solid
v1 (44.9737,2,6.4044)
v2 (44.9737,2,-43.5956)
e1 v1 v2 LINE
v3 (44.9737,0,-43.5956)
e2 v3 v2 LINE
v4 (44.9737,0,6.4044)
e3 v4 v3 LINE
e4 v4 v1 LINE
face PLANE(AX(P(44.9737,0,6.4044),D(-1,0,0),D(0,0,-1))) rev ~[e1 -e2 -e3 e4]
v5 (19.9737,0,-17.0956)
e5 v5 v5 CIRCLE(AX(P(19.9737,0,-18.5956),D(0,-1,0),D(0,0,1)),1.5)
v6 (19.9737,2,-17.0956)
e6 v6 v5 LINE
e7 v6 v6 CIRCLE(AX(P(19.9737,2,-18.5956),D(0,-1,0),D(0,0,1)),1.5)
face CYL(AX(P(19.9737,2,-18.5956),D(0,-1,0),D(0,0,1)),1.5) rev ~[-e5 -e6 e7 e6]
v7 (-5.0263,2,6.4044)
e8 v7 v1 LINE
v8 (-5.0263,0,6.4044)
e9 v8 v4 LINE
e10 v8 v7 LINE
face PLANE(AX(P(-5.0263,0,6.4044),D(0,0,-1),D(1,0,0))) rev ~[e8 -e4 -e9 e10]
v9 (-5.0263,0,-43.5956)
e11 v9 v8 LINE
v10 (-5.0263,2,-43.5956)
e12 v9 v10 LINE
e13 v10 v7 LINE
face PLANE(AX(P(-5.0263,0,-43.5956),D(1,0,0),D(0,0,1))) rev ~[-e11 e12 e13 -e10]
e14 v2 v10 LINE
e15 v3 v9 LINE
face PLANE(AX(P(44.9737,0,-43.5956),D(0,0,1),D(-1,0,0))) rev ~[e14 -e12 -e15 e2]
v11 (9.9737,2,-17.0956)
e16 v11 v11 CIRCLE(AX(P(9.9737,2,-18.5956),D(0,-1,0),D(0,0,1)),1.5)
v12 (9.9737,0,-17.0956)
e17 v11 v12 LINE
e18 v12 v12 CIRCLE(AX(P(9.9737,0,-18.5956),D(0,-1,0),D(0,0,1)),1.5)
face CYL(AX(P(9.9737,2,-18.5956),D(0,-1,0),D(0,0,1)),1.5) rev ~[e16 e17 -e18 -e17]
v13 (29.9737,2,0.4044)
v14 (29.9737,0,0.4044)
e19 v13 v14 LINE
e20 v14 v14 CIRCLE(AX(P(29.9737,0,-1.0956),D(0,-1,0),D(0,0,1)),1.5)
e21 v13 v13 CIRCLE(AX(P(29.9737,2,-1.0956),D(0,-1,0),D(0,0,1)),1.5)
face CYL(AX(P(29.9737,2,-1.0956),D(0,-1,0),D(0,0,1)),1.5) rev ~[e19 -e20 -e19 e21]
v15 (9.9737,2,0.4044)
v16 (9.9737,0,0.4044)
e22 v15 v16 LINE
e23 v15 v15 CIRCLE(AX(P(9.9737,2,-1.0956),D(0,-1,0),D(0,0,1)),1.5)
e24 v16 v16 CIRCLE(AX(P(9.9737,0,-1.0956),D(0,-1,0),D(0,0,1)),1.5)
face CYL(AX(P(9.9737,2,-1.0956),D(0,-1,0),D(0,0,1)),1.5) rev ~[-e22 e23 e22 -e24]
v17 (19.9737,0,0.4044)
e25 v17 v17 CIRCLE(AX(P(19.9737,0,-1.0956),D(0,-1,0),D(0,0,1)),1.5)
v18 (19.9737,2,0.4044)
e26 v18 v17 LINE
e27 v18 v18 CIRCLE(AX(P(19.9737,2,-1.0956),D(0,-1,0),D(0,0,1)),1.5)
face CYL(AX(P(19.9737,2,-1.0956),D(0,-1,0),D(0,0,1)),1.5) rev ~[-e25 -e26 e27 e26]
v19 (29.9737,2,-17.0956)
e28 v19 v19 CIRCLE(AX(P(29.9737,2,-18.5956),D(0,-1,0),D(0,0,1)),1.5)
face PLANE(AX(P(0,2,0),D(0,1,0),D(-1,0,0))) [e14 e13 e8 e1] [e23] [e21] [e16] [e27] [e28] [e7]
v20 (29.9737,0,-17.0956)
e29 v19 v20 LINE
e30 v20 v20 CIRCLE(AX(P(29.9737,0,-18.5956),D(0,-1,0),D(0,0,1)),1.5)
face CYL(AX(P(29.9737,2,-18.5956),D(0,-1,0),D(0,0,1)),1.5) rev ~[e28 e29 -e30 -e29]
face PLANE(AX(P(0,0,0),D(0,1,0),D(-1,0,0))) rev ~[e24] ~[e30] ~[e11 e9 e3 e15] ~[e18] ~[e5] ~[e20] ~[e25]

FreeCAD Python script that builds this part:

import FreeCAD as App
import Part
import Sketcher
from FreeCAD import Vector
Q = App.Units.Quantity

doc = App.newDocument("Part")
body = doc.addObject("PartDesign::Body", "Body")

# Sketch on XZ plane
sketch1 = doc.addObject("Sketcher::SketchObject", "Sketch")
body.addObject(sketch1)
sketch1.AttachmentSupport = (doc.XZ_Plane, [""])
sketch1.MapMode = "FlatFace"
sketch1.addGeometry([
    Part.LineSegment(Vector(-5.0263, -43.5956, 0), Vector(-5.0263, 6.4044, 0)),
    Part.LineSegment(Vector(-5.0263, 6.4044, 0), Vector(44.9737, 6.4044, 0)),
    Part.LineSegment(Vector(44.9737, 6.4044, 0), Vector(44.9737, -43.5956, 0)),
    Part.LineSegment(Vector(44.9737, -43.5956, 0), Vector(-5.0263, -43.5956, 0)),
], False)
sketch1.addConstraint([
    Sketcher.Constraint("Coincident", 0, 2, 1, 1),
    Sketcher.Constraint("Coincident", 1, 2, 2, 1),
    Sketcher.Constraint("Coincident", 2, 2, 3, 1),
    Sketcher.Constraint("Coincident", 3, 2, 0, 1),
    Sketcher.Constraint("Vertical", 0),
    Sketcher.Constraint("Horizontal", 1),
    Sketcher.Constraint("Vertical", 2),
    Sketcher.Constraint("Horizontal", 3),
    Sketcher.Constraint("Equal", 3, 0),
    Sketcher.Constraint("DistanceX", 1, 1, 1, 2, Q("50 mm")),
    Sketcher.Constraint("DistanceX", 0, 2, -1, 1, Q("5.0263 mm")),
    Sketcher.Constraint("DistanceY", -1, 1, 0, 2, Q("6.4044 mm")),
])
pad1 = doc.addObject("PartDesign::Pad", "Pad")
body.addObject(pad1)
pad1.Profile = sketch1
pad1.Length = 2
pad1.Reversed = True

# Sketch on XZ plane
sketch2 = doc.addObject("Sketcher::SketchObject", "Sketch001")
body.addObject(sketch2)
sketch2.AttachmentSupport = (doc.XZ_Plane, [""])
sketch2.MapMode = "FlatFace"
sketch2.AttachmentOffset = App.Placement(Vector(0, 0, -2), App.Rotation())
sketch2.addGeometry([
    Part.Circle(Vector(9.9737, -1.0956, 0), Vector(0, 0, 1), 1.5),  # 0
    Part.Circle(Vector(19.9737, -1.0956, 0), Vector(0, 0, 1), 1.5),  # 1
    Part.Circle(Vector(29.9737, -1.0956, 0), Vector(0, 0, 1), 1.5),  # 2
    Part.Circle(Vector(9.9737, -18.5956, 0), Vector(0, 0, 1), 1.5),  # 3
    Part.Circle(Vector(19.9737, -18.5956, 0), Vector(0, 0, 1), 1.5),  # 4
    Part.Circle(Vector(29.9737, -18.5956, 0), Vector(0, 0, 1), 1.5),  # 5
], False)
sketch2.addConstraint([
    Sketcher.Constraint("Equal", 0, 1),
    Sketcher.Constraint("Equal", 1, 2),
    Sketcher.Constraint("Equal", 2, 3),
    Sketcher.Constraint("Equal", 3, 4),
    Sketcher.Constraint("Equal", 4, 5),
    Sketcher.Constraint("Horizontal", 0, 3, 1, 3),
    Sketcher.Constraint("Horizontal", 1, 3, 2, 3),
    Sketcher.Constraint("Horizontal", 3, 3, 4, 3),
    Sketcher.Constraint("Horizontal", 4, 3, 5, 3),
    Sketcher.Constraint("Vertical", 0, 3, 3, 3),
    Sketcher.Constraint("Vertical", 1, 3, 4, 3),
    Sketcher.Constraint("Vertical", 2, 3, 5, 3),
    Sketcher.Constraint("Diameter", 0, Q("3 mm")),
    Sketcher.Constraint("DistanceX", 0, 3, 1, 3, Q("10 mm")),
    Sketcher.Constraint("DistanceX", 1, 3, 2, 3, Q("10 mm")),
    Sketcher.Constraint("DistanceY", 3, 3, 0, 3, Q("17.5 mm")),
    Sketcher.Constraint("DistanceX", -1, 1, 0, 3, Q("9.9737 mm")),
    Sketcher.Constraint("DistanceY", 0, 3, -1, 1, Q("1.0956 mm")),
])
doc.recompute()
hole = doc.addObject("PartDesign::Hole", "Hole")
body.addObject(hole)
hole.Profile = sketch2
hole.ThreadType = "None"
hole.Diameter = 3
hole.DepthType = "Dimension"
hole.Depth = 2
hole.DrillPoint = "Flat"
hole.Reversed = True

doc.recompute()
